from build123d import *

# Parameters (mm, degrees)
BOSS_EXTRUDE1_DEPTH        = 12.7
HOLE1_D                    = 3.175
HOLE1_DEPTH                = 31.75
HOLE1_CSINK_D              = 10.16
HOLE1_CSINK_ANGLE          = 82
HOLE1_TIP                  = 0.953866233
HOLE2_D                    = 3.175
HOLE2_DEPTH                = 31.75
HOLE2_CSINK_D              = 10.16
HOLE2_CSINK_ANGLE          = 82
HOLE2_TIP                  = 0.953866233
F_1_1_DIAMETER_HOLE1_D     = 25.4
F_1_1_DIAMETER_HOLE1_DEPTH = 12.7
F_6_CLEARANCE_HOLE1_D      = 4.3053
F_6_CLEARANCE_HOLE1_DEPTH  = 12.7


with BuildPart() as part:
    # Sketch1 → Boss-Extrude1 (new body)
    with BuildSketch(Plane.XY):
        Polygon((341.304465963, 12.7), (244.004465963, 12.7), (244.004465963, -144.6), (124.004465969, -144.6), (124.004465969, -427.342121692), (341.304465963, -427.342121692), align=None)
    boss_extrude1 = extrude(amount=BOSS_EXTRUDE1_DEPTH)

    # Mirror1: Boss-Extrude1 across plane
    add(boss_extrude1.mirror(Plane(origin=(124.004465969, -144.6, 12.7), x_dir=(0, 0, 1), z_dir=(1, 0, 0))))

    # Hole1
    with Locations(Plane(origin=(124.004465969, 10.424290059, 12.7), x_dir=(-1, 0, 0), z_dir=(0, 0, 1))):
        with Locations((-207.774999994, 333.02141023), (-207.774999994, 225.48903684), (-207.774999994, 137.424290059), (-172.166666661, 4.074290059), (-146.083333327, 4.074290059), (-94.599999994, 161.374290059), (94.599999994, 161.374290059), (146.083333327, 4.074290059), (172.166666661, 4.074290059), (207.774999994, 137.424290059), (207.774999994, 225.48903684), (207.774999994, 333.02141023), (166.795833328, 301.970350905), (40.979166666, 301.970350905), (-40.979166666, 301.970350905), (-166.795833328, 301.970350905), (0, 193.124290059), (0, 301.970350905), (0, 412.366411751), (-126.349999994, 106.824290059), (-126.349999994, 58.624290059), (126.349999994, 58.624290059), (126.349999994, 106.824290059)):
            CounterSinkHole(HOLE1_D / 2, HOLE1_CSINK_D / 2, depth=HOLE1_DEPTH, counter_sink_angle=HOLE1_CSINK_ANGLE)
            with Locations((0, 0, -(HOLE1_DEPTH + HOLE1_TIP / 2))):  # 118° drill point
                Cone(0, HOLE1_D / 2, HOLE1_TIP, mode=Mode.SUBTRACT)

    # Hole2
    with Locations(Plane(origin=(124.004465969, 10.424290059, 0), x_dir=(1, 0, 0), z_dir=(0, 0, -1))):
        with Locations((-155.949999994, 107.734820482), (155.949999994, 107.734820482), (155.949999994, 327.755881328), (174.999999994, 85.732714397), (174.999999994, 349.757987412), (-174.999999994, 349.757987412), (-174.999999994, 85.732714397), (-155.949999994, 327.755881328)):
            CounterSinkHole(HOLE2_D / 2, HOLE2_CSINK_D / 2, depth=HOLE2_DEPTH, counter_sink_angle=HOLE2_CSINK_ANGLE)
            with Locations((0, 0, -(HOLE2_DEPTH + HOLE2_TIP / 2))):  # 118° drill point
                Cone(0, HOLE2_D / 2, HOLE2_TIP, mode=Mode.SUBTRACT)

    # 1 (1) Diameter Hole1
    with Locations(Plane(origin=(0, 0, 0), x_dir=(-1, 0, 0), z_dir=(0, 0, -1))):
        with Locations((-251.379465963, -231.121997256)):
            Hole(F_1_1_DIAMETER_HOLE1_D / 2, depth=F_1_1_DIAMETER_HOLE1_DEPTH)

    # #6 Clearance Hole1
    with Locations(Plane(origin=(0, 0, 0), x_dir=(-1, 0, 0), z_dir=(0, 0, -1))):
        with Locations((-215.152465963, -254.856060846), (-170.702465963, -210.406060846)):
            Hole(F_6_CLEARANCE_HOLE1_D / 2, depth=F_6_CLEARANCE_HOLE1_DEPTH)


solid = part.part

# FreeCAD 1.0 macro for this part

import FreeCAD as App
import Part
import Sketcher
Q = App.Units.Quantity


def add_polygon(sketch, points):
    """Adds a closed chain of lines whose ends are joined by coincident constraints."""
    first, n = sketch.GeometryCount, len(points)
    for a, b in zip(points, points[1:] + points[:1]):
        sketch.addGeometry(Part.LineSegment(App.Vector(*a, 0), App.Vector(*b, 0)), False)
    for i in range(n):
        sketch.addConstraint(Sketcher.Constraint("Coincident", first + i, 2, first + (i + 1) % n, 1))

doc = App.newDocument("Part")
body = doc.addObject("PartDesign::Body", "Body")

sketch1 = doc.addObject("Sketcher::SketchObject", "Sketch")
body.addObject(sketch1)
sketch1.AttachmentSupport = (doc.XY_Plane, [""])
sketch1.MapMode = "FlatFace"
add_polygon(sketch1, [(341.304466, 12.7), (244.004466, 12.7), (244.004466, -144.6), (124.004466, -144.6), (124.004466, -427.342122), (341.304466, -427.342122)])
sketch1.addConstraint([
    Sketcher.Constraint("Horizontal", 0),
    Sketcher.Constraint("Vertical", 1),
    Sketcher.Constraint("Horizontal", 2),
    Sketcher.Constraint("Vertical", 3),
    Sketcher.Constraint("Horizontal", 4),
    Sketcher.Constraint("Vertical", 5),
    Sketcher.Constraint("DistanceX", 2, 2, 2, 1, Q("120 mm")),
    Sketcher.Constraint("DistanceX", 0, 2, 0, 1, Q("97.3 mm")),
    Sketcher.Constraint("DistanceY", 1, 2, 1, 1, Q("157.3 mm")),
    Sketcher.Constraint("DistanceY", -1, 1, 0, 2, Q("12.7 mm")),
    Sketcher.Constraint("DistanceY", 3, 2, 3, 1, Q("282.742122 mm")),
    Sketcher.Constraint("DistanceX", -1, 1, 0, 2, Q("244.004466 mm")),
])
pad1 = doc.addObject("PartDesign::Pad", "Pad")
body.addObject(pad1)
pad1.Profile = sketch1
pad1.Length = 12.7
doc.recompute()

datumplane = doc.addObject("PartDesign::Plane", "DatumPlane")
body.addObject(datumplane)
datumplane.AttachmentSupport = (doc.YZ_Plane, [""])
datumplane.MapMode = "FlatFace"
datumplane.AttachmentOffset = App.Placement(App.Vector(0, 0, 124.004466), App.Rotation())
mirrored = doc.addObject("PartDesign::Mirrored", "Mirrored")
body.addObject(mirrored)
mirrored.Originals = [pad1]
mirrored.MirrorPlane = (datumplane, [""])
body.Tip = mirrored

sketch2 = doc.addObject("Sketcher::SketchObject", "Sketch001")
body.addObject(sketch2)
sketch2.AttachmentSupport = (doc.XY_Plane, [""])
sketch2.MapMode = "FlatFace"
sketch2.AttachmentOffset = App.Placement(App.Vector(0, 0, 12.7), App.Rotation())
sketch2.addGeometry([
    Part.Circle(App.Vector(331.779466, -322.59712, 0), App.Vector(0, 0, 1), 1.5875),
    Part.Circle(App.Vector(331.779466, -215.064747, 0), App.Vector(0, 0, 1), 1.5875),
    Part.Circle(App.Vector(331.779466, -127, 0), App.Vector(0, 0, 1), 1.5875),
    Part.Circle(App.Vector(296.171133, 6.35, 0), App.Vector(0, 0, 1), 1.5875),
    Part.Circle(App.Vector(270.087799, 6.35, 0), App.Vector(0, 0, 1), 1.5875),
    Part.Circle(App.Vector(218.604466, -150.95, 0), App.Vector(0, 0, 1), 1.5875),
    Part.Circle(App.Vector(29.404466, -150.95, 0), App.Vector(0, 0, 1), 1.5875),
    Part.Circle(App.Vector(-22.078867, 6.35, 0), App.Vector(0, 0, 1), 1.5875),
    Part.Circle(App.Vector(-48.162201, 6.35, 0), App.Vector(0, 0, 1), 1.5875),
    Part.Circle(App.Vector(-83.770534, -127, 0), App.Vector(0, 0, 1), 1.5875),
    Part.Circle(App.Vector(-83.770534, -215.064747, 0), App.Vector(0, 0, 1), 1.5875),
    Part.Circle(App.Vector(-83.770534, -322.59712, 0), App.Vector(0, 0, 1), 1.5875),
    Part.Circle(App.Vector(-42.791367, -291.546061, 0), App.Vector(0, 0, 1), 1.5875),
    Part.Circle(App.Vector(83.025299, -291.546061, 0), App.Vector(0, 0, 1), 1.5875),
    Part.Circle(App.Vector(164.983633, -291.546061, 0), App.Vector(0, 0, 1), 1.5875),
    Part.Circle(App.Vector(290.800299, -291.546061, 0), App.Vector(0, 0, 1), 1.5875),
    Part.Circle(App.Vector(124.004466, -182.7, 0), App.Vector(0, 0, 1), 1.5875),
    Part.Circle(App.Vector(124.004466, -291.546061, 0), App.Vector(0, 0, 1), 1.5875),
    Part.Circle(App.Vector(124.004466, -401.942122, 0), App.Vector(0, 0, 1), 1.5875),
    Part.Circle(App.Vector(250.354466, -96.4, 0), App.Vector(0, 0, 1), 1.5875),
    Part.Circle(App.Vector(250.354466, -48.2, 0), App.Vector(0, 0, 1), 1.5875),
    Part.Circle(App.Vector(-2.345534, -48.2, 0), App.Vector(0, 0, 1), 1.5875),
    Part.Circle(App.Vector(-2.345534, -96.4, 0), App.Vector(0, 0, 1), 1.5875),
], False)
sketch2.addConstraint([
    Sketcher.Constraint("Equal", 0, 1),
    Sketcher.Constraint("Equal", 1, 2),
    Sketcher.Constraint("Equal", 2, 3),
    Sketcher.Constraint("Equal", 3, 4),
    Sketcher.Constraint("Equal", 4, 5),
    Sketcher.Constraint("Equal", 5, 6),
    Sketcher.Constraint("Equal", 6, 7),
    Sketcher.Constraint("Equal", 7, 8),
    Sketcher.Constraint("Equal", 8, 9),
    Sketcher.Constraint("Equal", 9, 10),
    Sketcher.Constraint("Equal", 10, 11),
    Sketcher.Constraint("Equal", 11, 12),
    Sketcher.Constraint("Equal", 12, 13),
    Sketcher.Constraint("Equal", 13, 14),
    Sketcher.Constraint("Equal", 14, 15),
    Sketcher.Constraint("Equal", 15, 16),
    Sketcher.Constraint("Equal", 16, 17),
    Sketcher.Constraint("Equal", 17, 18),
    Sketcher.Constraint("Equal", 18, 19),
    Sketcher.Constraint("Equal", 19, 20),
    Sketcher.Constraint("Equal", 20, 21),
    Sketcher.Constraint("Equal", 21, 22),
    Sketcher.Constraint("Horizontal", 3, 3, 4, 3),
    Sketcher.Constraint("Horizontal", 5, 3, 6, 3),
    Sketcher.Constraint("Horizontal", 4, 3, 7, 3),
    Sketcher.Constraint("Horizontal", 7, 3, 8, 3),
    Sketcher.Constraint("Horizontal", 2, 3, 9, 3),
    Sketcher.Constraint("Horizontal", 1, 3, 10, 3),
    Sketcher.Constraint("Horizontal", 0, 3, 11, 3),
    Sketcher.Constraint("Horizontal", 12, 3, 13, 3),
    Sketcher.Constraint("Horizontal", 13, 3, 14, 3),
    Sketcher.Constraint("Horizontal", 14, 3, 15, 3),
    Sketcher.Constraint("Horizontal", 15, 3, 17, 3),
    Sketcher.Constraint("Horizontal", 20, 3, 21, 3),
    Sketcher.Constraint("Horizontal", 19, 3, 22, 3),
    Sketcher.Constraint("Vertical", 0, 3, 1, 3),
    Sketcher.Constraint("Vertical", 1, 3, 2, 3),
    Sketcher.Constraint("Vertical", 9, 3, 10, 3),
    Sketcher.Constraint("Vertical", 10, 3, 11, 3),
    Sketcher.Constraint("Vertical", 16, 3, 17, 3),
    Sketcher.Constraint("Vertical", 17, 3, 18, 3),
    Sketcher.Constraint("Vertical", 19, 3, 20, 3),
    Sketcher.Constraint("Vertical", 21, 3, 22, 3),
    Sketcher.Constraint("Diameter", 0, Q("3.175 mm")),
    Sketcher.Constraint("DistanceY", 2, 3, -1, 1, Q("127 mm")),
    Sketcher.Constraint("DistanceY", 16, 3, -1, 1, Q("182.7 mm")),
    Sketcher.Constraint("DistanceY", 19, 3, -1, 1, Q("96.4 mm")),
    Sketcher.Constraint("DistanceY", 20, 3, -1, 1, Q("48.2 mm")),
    Sketcher.Constraint("DistanceY", 5, 3, 4, 3, Q("157.3 mm")),
    Sketcher.Constraint("DistanceX", 6, 3, 5, 3, Q("189.2 mm")),
    Sketcher.Constraint("DistanceX", 16, 3, 5, 3, Q("94.6 mm")),
    Sketcher.Constraint("DistanceY", -1, 1, 3, 3, Q("6.35 mm")),
    Sketcher.Constraint("DistanceX", 7, 3, 3, 3, Q("318.25 mm")),
    Sketcher.Constraint("DistanceX", 8, 3, 4, 3, Q("318.25 mm")),
    Sketcher.Constraint("DistanceX", 5, 3, 19, 3, Q("31.75 mm")),
    Sketcher.Constraint("DistanceX", 21, 3, 6, 3, Q("31.75 mm")),
    Sketcher.Constraint("DistanceX", 5, 3, 2, 3, Q("113.175 mm")),
    Sketcher.Constraint("DistanceX", 9, 3, 6, 3, Q("113.175 mm")),
    Sketcher.Constraint("DistanceX", -1, 1, 4, 3, Q("270.087799 mm")),
    Sketcher.Constraint("DistanceX", -1, 1, 13, 3, Q("83.025299 mm")),
    Sketcher.Constraint("DistanceX", -1, 1, 15, 3, Q("290.800299 mm")),
    Sketcher.Constraint("DistanceY", 0, 3, -1, 1, Q("322.59712 mm")),
    Sketcher.Constraint("DistanceY", 12, 3, -1, 1, Q("291.546061 mm")),
    Sketcher.Constraint("DistanceY", 18, 3, -1, 1, Q("401.942122 mm")),
    Sketcher.Constraint("DistanceX", -1, 1, 0, 3, Q("331.779466 mm")),
    Sketcher.Constraint("DistanceY", 1, 3, -1, 1, Q("215.064747 mm")),
    Sketcher.Constraint("DistanceX", -1, 1, 3, 3, Q("296.171133 mm")),
    Sketcher.Constraint("DistanceX", 12, 3, -1, 1, Q("42.791367 mm")),
    Sketcher.Constraint("DistanceX", -1, 1, 14, 3, Q("164.983633 mm")),
])
doc.recompute()
hole = doc.addObject("PartDesign::Hole", "Hole")
body.addObject(hole)
hole.Profile = sketch2
hole.ThreadType = "None"
hole.Diameter = 3.175
hole.DepthType = "Dimension"
hole.Depth = 31.75
hole.DrillPoint = "Angled"
hole.DrillPointAngle = 118
hole.HoleCutType = "Countersink"
hole.HoleCutDiameter = 10.16
hole.HoleCutCountersinkAngle = 82

sketch3 = doc.addObject("Sketcher::SketchObject", "Sketch002")
body.addObject(sketch3)
sketch3.AttachmentSupport = (doc.XY_Plane, [""])
sketch3.MapMode = "FlatFace"
sketch3.addGeometry([
    Part.Circle(App.Vector(-31.945534, -97.31053, 0), App.Vector(0, 0, 1), 1.5875),
    Part.Circle(App.Vector(279.954466, -97.31053, 0), App.Vector(0, 0, 1), 1.5875),
    Part.Circle(App.Vector(279.954466, -317.331591, 0), App.Vector(0, 0, 1), 1.5875),
    Part.Circle(App.Vector(299.004466, -75.308424, 0), App.Vector(0, 0, 1), 1.5875),
    Part.Circle(App.Vector(299.004466, -339.333697, 0), App.Vector(0, 0, 1), 1.5875),
    Part.Circle(App.Vector(-50.995534, -339.333697, 0), App.Vector(0, 0, 1), 1.5875),
    Part.Circle(App.Vector(-50.995534, -75.308424, 0), App.Vector(0, 0, 1), 1.5875),
    Part.Circle(App.Vector(-31.945534, -317.331591, 0), App.Vector(0, 0, 1), 1.5875),
], False)
sketch3.addConstraint([
    Sketcher.Constraint("Equal", 0, 1),
    Sketcher.Constraint("Equal", 1, 2),
    Sketcher.Constraint("Equal", 2, 3),
    Sketcher.Constraint("Equal", 3, 4),
    Sketcher.Constraint("Equal", 4, 5),
    Sketcher.Constraint("Equal", 5, 6),
    Sketcher.Constraint("Equal", 6, 7),
    Sketcher.Constraint("Horizontal", 0, 3, 1, 3),
    Sketcher.Constraint("Horizontal", 4, 3, 5, 3),
    Sketcher.Constraint("Horizontal", 3, 3, 6, 3),
    Sketcher.Constraint("Horizontal", 2, 3, 7, 3),
    Sketcher.Constraint("Vertical", 1, 3, 2, 3),
    Sketcher.Constraint("Vertical", 3, 3, 4, 3),
    Sketcher.Constraint("Vertical", 5, 3, 6, 3),
    Sketcher.Constraint("Vertical", 0, 3, 7, 3),
    Sketcher.Constraint("Diameter", 0, Q("3.175 mm")),
    Sketcher.Constraint("DistanceX", 5, 3, 4, 3, Q("350 mm")),
    Sketcher.Constraint("DistanceX", 0, 3, 1, 3, Q("311.9 mm")),
    Sketcher.Constraint("DistanceX", 1, 3, 3, 3, Q("19.05 mm")),
    Sketcher.Constraint("DistanceY", 0, 3, -1, 1, Q("97.31053 mm")),
    Sketcher.Constraint("DistanceY", 2, 3, -1, 1, Q("317.331591 mm")),
    Sketcher.Constraint("DistanceX", 0, 3, -1, 1, Q("31.945534 mm")),
    Sketcher.Constraint("DistanceY", 3, 3, -1, 1, Q("75.308424 mm")),
    Sketcher.Constraint("DistanceY", 4, 3, -1, 1, Q("339.333697 mm")),
])
doc.recompute()
hole2 = doc.addObject("PartDesign::Hole", "Hole001")
body.addObject(hole2)
hole2.Profile = sketch3
hole2.ThreadType = "None"
hole2.Diameter = 3.175
hole2.DepthType = "Dimension"
hole2.Depth = 31.75
hole2.DrillPoint = "Angled"
hole2.DrillPointAngle = 118
hole2.HoleCutType = "Countersink"
hole2.HoleCutDiameter = 10.16
hole2.HoleCutCountersinkAngle = 82
hole2.Reversed = True

sketch4 = doc.addObject("Sketcher::SketchObject", "Sketch003")
body.addObject(sketch4)
sketch4.AttachmentSupport = (doc.XY_Plane, [""])
sketch4.MapMode = "FlatFace"
sketch4.addGeometry(Part.Circle(App.Vector(251.379466, -231.121997, 0), App.Vector(0, 0, 1), 12.7), False)
sketch4.addConstraint([
    Sketcher.Constraint("Diameter", 0, Q("25.4 mm")),
    Sketcher.Constraint("DistanceX", -1, 1, 0, 3, Q("251.379466 mm")),
    Sketcher.Constraint("DistanceY", 0, 3, -1, 1, Q("231.121997 mm")),
])
doc.recompute()
hole3 = doc.addObject("PartDesign::Hole", "Hole002")
body.addObject(hole3)
hole3.Profile = sketch4
hole3.ThreadType = "None"
hole3.Diameter = 25.4
hole3.DepthType = "Dimension"
hole3.Depth = 12.7
hole3.DrillPoint = "Flat"
hole3.Reversed = True

sketch5 = doc.addObject("Sketcher::SketchObject", "Sketch004")
body.addObject(sketch5)
sketch5.AttachmentSupport = (doc.XY_Plane, [""])
sketch5.MapMode = "FlatFace"
sketch5.addGeometry([
    Part.Circle(App.Vector(215.152466, -254.856061, 0), App.Vector(0, 0, 1), 2.15265),
    Part.Circle(App.Vector(170.702466, -210.406061, 0), App.Vector(0, 0, 1), 2.15265),
], False)
sketch5.addConstraint([
    Sketcher.Constraint("Equal", 0, 1),
    Sketcher.Constraint("Diameter", 0, Q("4.3053 mm")),
    Sketcher.Constraint("DistanceX", 1, 3, 0, 3, Q("44.45 mm")),
    Sketcher.Constraint("DistanceY", 0, 3, 1, 3, Q("44.45 mm")),
    Sketcher.Constraint("DistanceY", 0, 3, -1, 1, Q("254.856061 mm")),
    Sketcher.Constraint("DistanceX", -1, 1, 0, 3, Q("215.152466 mm")),
])
doc.recompute()
hole4 = doc.addObject("PartDesign::Hole", "Hole003")
body.addObject(hole4)
hole4.Profile = sketch5
hole4.ThreadType = "None"
hole4.Diameter = 4.3053
hole4.DepthType = "Dimension"
hole4.Depth = 12.7
hole4.DrillPoint = "Flat"
hole4.Reversed = True

doc.recompute()
